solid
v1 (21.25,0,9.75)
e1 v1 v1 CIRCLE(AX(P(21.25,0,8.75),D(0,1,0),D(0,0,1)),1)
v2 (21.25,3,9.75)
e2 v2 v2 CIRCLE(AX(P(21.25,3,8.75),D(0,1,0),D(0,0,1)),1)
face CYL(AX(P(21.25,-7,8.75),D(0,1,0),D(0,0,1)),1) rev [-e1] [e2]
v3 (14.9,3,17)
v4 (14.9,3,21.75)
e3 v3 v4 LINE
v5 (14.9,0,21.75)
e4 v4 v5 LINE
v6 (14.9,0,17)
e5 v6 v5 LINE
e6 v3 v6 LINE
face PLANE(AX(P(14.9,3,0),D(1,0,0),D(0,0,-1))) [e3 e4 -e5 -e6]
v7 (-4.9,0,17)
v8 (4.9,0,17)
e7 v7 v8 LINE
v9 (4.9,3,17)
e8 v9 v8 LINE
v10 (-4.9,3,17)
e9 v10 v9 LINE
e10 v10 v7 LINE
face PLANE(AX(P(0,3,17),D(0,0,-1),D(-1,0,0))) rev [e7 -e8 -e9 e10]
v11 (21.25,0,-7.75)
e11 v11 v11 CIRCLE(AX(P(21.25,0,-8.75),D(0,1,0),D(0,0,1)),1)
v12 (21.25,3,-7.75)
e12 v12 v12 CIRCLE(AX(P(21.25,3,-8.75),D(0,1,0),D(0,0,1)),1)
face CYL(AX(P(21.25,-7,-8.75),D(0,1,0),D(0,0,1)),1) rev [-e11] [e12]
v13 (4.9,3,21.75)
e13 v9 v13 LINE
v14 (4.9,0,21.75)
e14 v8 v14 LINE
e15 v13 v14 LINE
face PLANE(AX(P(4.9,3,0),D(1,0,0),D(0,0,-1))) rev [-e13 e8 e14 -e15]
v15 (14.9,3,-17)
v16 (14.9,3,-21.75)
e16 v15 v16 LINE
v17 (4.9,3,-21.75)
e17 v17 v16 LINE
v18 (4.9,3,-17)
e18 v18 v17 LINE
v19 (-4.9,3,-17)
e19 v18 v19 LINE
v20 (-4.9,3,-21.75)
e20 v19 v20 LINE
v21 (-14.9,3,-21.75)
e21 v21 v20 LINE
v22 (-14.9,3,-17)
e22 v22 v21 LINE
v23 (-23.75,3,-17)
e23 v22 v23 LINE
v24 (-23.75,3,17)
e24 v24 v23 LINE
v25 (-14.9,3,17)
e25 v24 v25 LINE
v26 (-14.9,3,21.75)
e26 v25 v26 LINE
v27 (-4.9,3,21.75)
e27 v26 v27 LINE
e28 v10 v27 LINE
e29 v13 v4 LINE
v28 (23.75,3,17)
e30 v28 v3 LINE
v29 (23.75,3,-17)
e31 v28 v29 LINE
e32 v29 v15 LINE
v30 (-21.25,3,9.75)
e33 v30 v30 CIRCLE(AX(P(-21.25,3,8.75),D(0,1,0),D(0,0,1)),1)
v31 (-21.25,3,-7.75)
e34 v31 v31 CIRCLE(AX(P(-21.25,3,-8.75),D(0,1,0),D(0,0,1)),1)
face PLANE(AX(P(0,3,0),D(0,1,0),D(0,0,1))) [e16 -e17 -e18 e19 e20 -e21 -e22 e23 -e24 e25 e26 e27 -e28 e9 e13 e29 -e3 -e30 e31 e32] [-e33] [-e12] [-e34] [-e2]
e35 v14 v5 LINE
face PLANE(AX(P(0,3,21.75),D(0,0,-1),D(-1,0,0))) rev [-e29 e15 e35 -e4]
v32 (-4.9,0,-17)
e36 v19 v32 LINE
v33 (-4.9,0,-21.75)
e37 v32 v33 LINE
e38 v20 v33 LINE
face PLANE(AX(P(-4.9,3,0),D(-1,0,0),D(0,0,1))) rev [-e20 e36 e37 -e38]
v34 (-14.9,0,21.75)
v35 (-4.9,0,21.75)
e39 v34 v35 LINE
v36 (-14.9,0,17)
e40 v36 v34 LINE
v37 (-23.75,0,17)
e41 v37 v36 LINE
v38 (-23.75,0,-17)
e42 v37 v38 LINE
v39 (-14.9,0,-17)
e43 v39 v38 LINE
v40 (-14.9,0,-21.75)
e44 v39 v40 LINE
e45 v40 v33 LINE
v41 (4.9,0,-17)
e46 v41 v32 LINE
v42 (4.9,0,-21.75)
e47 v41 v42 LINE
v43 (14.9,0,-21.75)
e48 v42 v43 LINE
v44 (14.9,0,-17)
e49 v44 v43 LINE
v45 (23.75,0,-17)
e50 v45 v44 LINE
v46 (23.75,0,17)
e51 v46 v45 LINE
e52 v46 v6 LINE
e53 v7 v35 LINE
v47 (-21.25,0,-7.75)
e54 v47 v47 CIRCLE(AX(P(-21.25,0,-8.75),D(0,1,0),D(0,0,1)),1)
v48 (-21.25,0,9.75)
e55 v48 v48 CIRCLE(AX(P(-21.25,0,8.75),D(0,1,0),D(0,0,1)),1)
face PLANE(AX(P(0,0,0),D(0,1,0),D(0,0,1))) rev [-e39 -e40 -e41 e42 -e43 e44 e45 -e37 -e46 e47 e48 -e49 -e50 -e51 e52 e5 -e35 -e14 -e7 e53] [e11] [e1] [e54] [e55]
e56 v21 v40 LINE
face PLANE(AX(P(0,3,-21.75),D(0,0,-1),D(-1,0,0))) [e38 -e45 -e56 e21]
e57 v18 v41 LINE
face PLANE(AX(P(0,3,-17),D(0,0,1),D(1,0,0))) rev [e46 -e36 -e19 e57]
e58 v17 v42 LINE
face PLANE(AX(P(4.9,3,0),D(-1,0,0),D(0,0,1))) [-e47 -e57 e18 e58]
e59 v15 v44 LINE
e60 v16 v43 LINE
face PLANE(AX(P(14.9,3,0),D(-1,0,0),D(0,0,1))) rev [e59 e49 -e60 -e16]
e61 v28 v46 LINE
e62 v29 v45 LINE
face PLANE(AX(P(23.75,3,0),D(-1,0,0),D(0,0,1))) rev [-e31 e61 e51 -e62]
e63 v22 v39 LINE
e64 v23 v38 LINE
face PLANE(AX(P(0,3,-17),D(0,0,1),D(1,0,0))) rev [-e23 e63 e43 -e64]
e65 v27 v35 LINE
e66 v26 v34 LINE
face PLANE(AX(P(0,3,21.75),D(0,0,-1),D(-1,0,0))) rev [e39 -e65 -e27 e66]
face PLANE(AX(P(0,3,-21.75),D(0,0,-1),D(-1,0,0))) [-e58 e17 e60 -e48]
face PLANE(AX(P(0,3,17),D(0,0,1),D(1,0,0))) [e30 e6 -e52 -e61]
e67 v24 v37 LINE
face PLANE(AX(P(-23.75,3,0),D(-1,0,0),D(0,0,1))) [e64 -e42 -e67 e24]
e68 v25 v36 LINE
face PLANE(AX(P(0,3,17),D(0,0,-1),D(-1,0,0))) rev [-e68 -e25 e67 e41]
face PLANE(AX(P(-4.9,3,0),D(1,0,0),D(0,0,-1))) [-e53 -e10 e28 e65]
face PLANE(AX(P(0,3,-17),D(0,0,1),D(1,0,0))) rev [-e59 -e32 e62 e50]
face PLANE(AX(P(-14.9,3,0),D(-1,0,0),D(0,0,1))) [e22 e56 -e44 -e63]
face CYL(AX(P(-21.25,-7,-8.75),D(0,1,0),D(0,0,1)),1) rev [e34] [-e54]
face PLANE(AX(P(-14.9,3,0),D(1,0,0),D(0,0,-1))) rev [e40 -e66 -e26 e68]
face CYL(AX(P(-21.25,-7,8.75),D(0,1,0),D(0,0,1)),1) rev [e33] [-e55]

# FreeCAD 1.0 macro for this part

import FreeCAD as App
import Part
import Sketcher

V = App.Vector
Q = App.Units.Quantity


def add_polygon(sketch, points):
    """Adds a closed chain of lines whose ends are joined by coincident constraints."""
    first, n = sketch.GeometryCount, len(points)
    for a, b in zip(points, points[1:] + points[:1]):
        sketch.addGeometry(Part.LineSegment(App.Vector(*a, 0), App.Vector(*b, 0)), False)
    for i in range(n):
        sketch.addConstraint(Sketcher.Constraint("Coincident", first + i, 2, first + (i + 1) % n, 1))

doc = App.newDocument("Part")
body = doc.addObject("PartDesign::Body", "Body")

# Sketch on XZ plane
sketch1 = body.newObject("Sketcher::SketchObject", "Sketch")
sketch1.AttachmentSupport = (doc.getObject("XZ_Plane"), [""])
sketch1.MapMode = "FlatFace"
add_polygon(sketch1, [(4.9, -21.75), (4.9, -17), (-4.9, -17), (-4.9, -21.75), (-14.9, -21.75), (-14.9, -17), (-23.75, -17), (-23.75, 17), (-14.9, 17), (-14.9, 21.75), (-4.9, 21.75), (-4.9, 17), (4.9, 17), (4.9, 21.75), (14.9, 21.75), (14.9, 17), (23.75, 17), (23.75, -17), (14.9, -17), (14.9, -21.75)])  # lines 0-19
sketch1.addConstraint([
    Sketcher.Constraint("Vertical", 0),
    Sketcher.Constraint("Horizontal", 1),
    Sketcher.Constraint("Vertical", 2),
    Sketcher.Constraint("Horizontal", 3),
    Sketcher.Constraint("Vertical", 4),
    Sketcher.Constraint("Horizontal", 5),
    Sketcher.Constraint("Vertical", 6),
    Sketcher.Constraint("Horizontal", 7),
    Sketcher.Constraint("Vertical", 8),
    Sketcher.Constraint("Horizontal", 9),
    Sketcher.Constraint("Vertical", 10),
    Sketcher.Constraint("Horizontal", 11),
    Sketcher.Constraint("Vertical", 12),
    Sketcher.Constraint("Horizontal", 13),
    Sketcher.Constraint("Vertical", 14),
    Sketcher.Constraint("Horizontal", 15),
    Sketcher.Constraint("Vertical", 16),
    Sketcher.Constraint("Horizontal", 17),
    Sketcher.Constraint("Vertical", 18),
    Sketcher.Constraint("Horizontal", 19),
    Sketcher.Constraint("Symmetric", 0, 2, 10, 2, -1, 1),
    Sketcher.Constraint("Symmetric", 2, 2, 12, 2, -1, 1),
    Sketcher.Constraint("Symmetric", 4, 2, 14, 2, -1, 1),
    Sketcher.Constraint("Symmetric", 6, 2, 16, 2, -1, 1),
    Sketcher.Constraint("Symmetric", 8, 2, 18, 2, -1, 1),
    Sketcher.Constraint("Symmetric", 9, 2, 12, 2, -2),
    Sketcher.Constraint("Symmetric", 7, 2, 14, 2, -2),
    Sketcher.Constraint("Horizontal", 1, 2, 4, 2),
    Sketcher.Constraint("DistanceX", 3, 2, 3, 1, Q("10 mm")),
    Sketcher.Constraint("DistanceY", 6, 1, 6, 2, Q("34 mm")),
    Sketcher.Constraint("DistanceX", 1, 2, 1, 1, Q("9.8 mm")),
    Sketcher.Constraint("DistanceX", 5, 2, 5, 1, Q("8.85 mm")),
    Sketcher.Constraint("DistanceY", 0, 1, 0, 2, Q("4.75 mm")),
])
pad1 = body.newObject("PartDesign::Pad", "Pad")
pad1.Profile = sketch1
pad1.Length = 3
pad1.Reversed = True

# Sketch on XZ plane
sketch2 = body.newObject("Sketcher::SketchObject", "Sketch001")
sketch2.AttachmentSupport = (doc.getObject("XZ_Plane"), [""])
sketch2.MapMode = "FlatFace"
sketch2.AttachmentOffset = App.Placement(V(0, 0, -3), App.Rotation())
sketch2.addGeometry([
    Part.Circle(V(-21.25, -8.75, 0), V(0, 0, 1), 1),
    Part.Circle(V(-21.25, 8.75, 0), V(0, 0, 1), 1),
    Part.Circle(V(21.25, 8.75, 0), V(0, 0, 1), 1),
    Part.Circle(V(21.25, -8.75, 0), V(0, 0, 1), 1),
], False)
sketch2.addConstraint([
    Sketcher.Constraint("Equal", 0, 1),
    Sketcher.Constraint("Equal", 1, 2),
    Sketcher.Constraint("Equal", 2, 3),
    Sketcher.Constraint("Symmetric", 0, 3, 2, 3, -1, 1),
    Sketcher.Constraint("Symmetric", 1, 3, 3, 3, -1, 1),
    Sketcher.Constraint("Symmetric", 1, 3, 2, 3, -2),
    Sketcher.Constraint("Diameter", 0, Q("2 mm")),
    Sketcher.Constraint("DistanceY", 0, 3, 1, 3, Q("17.5 mm")),
    Sketcher.Constraint("DistanceX", 1, 3, 2, 3, Q("42.5 mm")),
])
pocket1 = body.newObject("PartDesign::Pocket", "Pocket")
pocket1.Profile = sketch2
pocket1.Length = 10
pocket1.Reversed = True

doc.recompute()
